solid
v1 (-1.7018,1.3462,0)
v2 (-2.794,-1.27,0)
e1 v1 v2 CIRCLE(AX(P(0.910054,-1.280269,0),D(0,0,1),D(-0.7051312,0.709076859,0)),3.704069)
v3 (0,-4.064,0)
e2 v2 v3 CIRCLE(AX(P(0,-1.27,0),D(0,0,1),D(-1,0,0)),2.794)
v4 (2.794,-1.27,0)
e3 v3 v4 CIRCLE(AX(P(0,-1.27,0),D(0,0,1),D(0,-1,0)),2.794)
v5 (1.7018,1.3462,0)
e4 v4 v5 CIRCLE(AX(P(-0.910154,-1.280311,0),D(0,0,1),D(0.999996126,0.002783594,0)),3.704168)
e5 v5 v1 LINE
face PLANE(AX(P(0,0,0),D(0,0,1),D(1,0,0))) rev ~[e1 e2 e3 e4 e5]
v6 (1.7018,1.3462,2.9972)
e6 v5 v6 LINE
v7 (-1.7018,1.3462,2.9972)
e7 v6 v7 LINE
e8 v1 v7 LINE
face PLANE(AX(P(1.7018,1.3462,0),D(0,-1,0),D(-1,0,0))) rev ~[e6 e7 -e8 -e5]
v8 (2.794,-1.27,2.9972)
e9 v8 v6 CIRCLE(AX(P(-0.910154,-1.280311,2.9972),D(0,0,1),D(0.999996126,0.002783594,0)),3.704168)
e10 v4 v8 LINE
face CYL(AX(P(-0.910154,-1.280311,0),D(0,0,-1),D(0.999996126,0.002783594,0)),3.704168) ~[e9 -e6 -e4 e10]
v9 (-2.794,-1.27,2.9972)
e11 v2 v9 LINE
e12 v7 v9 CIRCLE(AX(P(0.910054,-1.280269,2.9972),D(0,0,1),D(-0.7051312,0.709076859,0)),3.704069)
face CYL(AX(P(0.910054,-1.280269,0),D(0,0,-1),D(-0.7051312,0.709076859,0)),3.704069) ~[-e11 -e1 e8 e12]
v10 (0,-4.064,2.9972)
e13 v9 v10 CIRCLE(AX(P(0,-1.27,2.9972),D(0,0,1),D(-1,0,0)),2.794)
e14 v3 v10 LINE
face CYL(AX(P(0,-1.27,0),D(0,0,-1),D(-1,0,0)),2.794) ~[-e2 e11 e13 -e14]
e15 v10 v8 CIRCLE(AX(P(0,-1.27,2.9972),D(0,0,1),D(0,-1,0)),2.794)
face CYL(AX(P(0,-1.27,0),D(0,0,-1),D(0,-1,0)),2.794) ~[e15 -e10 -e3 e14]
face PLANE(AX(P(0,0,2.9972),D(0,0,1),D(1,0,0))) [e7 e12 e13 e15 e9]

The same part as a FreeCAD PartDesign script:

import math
import FreeCAD as App
import Part
import Sketcher

V = App.Vector
Q = App.Units.Quantity

doc = App.newDocument("Part")
body = doc.addObject("PartDesign::Body", "Body")

# Sketch on XY plane
sketch1 = body.newObject("Sketcher::SketchObject", "Sketch")
sketch1.AttachmentSupport = (doc.getObject("XY_Plane"), [""])
sketch1.MapMode = "FlatFace"
sketch1.addGeometry(Part.ArcOfCircle(Part.Circle(V(0.9101, -1.2803, 0), V(0, 0, 1), 3.704123), math.radians(134.840311), math.radians(179.840678)), False)
sketch1.addGeometry(Part.ArcOfCircle(Part.Circle(V(0, -1.27, 0), V(0, 0, 1), 2.794), math.radians(180), math.radians(360)), False)
sketch1.addGeometry(Part.ArcOfCircle(Part.Circle(V(-0.9101, -1.2803, 0), V(0, 0, 1), 3.704114), math.radians(0.159322), math.radians(45.159689)), False)
sketch1.addGeometry(Part.LineSegment(V(1.7018, 1.3462, 0), V(-1.7018, 1.3462, 0)), False)
sketch1.addConstraint(Sketcher.Constraint("Coincident", 0, 2, 1, 1))
sketch1.addConstraint(Sketcher.Constraint("Coincident", 1, 2, 2, 1))
sketch1.addConstraint(Sketcher.Constraint("Coincident", 2, 2, 3, 1))
sketch1.addConstraint(Sketcher.Constraint("Coincident", 3, 2, 0, 1))
sketch1.addConstraint(Sketcher.Constraint("Horizontal", 3))
sketch1.addConstraint(Sketcher.Constraint("Equal", 0, 2))
sketch1.addConstraint(Sketcher.Constraint("Symmetric", 0, 3, 2, 3, -2))
sketch1.addConstraint(Sketcher.Constraint("PointOnObject", 1, 3, -2))
sketch1.addConstraint(Sketcher.Constraint("Horizontal", 1, 3, 0, 2))
sketch1.addConstraint(Sketcher.Constraint("Radius", 1, Q("0.11 in")))
sketch1.addConstraint(Sketcher.Constraint("DistanceX", 3, 2, 3, 1, Q("0.134 in")))
sketch1.addConstraint(Sketcher.Constraint("DistanceY", 1, 3, -1, 1, Q("0.05 in")))
sketch1.addConstraint(Sketcher.Constraint("Radius", 0, 3.7041))
sketch1.addConstraint(Sketcher.Constraint("DistanceY", -1, 1, 2, 2, Q("0.053 in")))
pad1 = body.newObject("PartDesign::Pad", "Pad")
pad1.Profile = sketch1
pad1.Length = Q("0.118 in")

doc.recompute()
